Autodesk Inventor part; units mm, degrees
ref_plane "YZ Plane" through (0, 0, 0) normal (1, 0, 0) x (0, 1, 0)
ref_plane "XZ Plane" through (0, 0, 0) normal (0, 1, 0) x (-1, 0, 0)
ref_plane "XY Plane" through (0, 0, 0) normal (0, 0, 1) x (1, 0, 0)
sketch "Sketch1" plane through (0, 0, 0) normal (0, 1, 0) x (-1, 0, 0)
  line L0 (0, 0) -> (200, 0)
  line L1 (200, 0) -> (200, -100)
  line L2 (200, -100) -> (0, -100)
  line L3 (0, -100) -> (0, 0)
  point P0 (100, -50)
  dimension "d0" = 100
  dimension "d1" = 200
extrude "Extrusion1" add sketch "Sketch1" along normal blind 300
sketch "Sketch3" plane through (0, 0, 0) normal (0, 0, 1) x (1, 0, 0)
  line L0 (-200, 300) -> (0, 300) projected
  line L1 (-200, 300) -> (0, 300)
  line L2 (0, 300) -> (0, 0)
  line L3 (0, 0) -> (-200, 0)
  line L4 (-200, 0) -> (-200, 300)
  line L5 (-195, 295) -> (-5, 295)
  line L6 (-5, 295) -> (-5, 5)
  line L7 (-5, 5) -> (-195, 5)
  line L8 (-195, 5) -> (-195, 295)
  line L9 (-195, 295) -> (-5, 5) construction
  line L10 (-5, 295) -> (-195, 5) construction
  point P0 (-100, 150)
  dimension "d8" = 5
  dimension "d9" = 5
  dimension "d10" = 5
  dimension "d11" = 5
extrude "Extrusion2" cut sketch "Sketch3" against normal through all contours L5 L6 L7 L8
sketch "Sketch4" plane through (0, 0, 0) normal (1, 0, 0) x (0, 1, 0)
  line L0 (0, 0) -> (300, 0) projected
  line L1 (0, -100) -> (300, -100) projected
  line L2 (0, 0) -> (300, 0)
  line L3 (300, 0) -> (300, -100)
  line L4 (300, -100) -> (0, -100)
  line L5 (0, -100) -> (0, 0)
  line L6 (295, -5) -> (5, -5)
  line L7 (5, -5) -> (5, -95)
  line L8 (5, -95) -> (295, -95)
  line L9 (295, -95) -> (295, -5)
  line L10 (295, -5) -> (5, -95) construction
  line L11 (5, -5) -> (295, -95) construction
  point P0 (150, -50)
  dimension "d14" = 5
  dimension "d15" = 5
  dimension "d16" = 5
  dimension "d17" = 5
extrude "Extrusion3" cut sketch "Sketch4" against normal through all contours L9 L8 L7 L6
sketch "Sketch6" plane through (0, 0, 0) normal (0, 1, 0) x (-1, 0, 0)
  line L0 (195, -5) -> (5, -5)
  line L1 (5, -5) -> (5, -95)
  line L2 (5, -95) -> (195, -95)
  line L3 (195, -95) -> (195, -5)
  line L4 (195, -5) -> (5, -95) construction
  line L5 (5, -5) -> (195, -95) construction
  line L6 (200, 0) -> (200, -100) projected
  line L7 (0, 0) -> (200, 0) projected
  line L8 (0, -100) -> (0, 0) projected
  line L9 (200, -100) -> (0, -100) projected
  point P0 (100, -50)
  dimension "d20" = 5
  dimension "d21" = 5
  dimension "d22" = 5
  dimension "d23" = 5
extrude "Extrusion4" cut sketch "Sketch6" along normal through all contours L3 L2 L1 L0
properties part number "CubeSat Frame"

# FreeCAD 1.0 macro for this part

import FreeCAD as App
import Part
import Sketcher

V = App.Vector
Q = App.Units.Quantity

doc = App.newDocument("Part")
body = doc.addObject("PartDesign::Body", "Body")

sketch1 = doc.addObject("Sketcher::SketchObject", "Sketch")
body.addObject(sketch1)
sketch1.AttachmentSupport = (doc.XZ_Plane, [""])
sketch1.MapMode = "FlatFace"
sketch1.addGeometry([
    Part.LineSegment(V(-200, 0, 0), V(0, 0, 0)),
    Part.LineSegment(V(0, 0, 0), V(0, -100, 0)),
    Part.LineSegment(V(0, -100, 0), V(-200, -100, 0)),
    Part.LineSegment(V(-200, -100, 0), V(-200, 0, 0)),
], False)
sketch1.addConstraint([
    Sketcher.Constraint("Coincident", 0, 2, 1, 1),
    Sketcher.Constraint("Coincident", 1, 2, 2, 1),
    Sketcher.Constraint("Coincident", 2, 2, 3, 1),
    Sketcher.Constraint("Coincident", 3, 2, 0, 1),
    Sketcher.Constraint("Horizontal", 0),
    Sketcher.Constraint("Vertical", 1),
    Sketcher.Constraint("Horizontal", 2),
    Sketcher.Constraint("Vertical", 3),
    Sketcher.Constraint("Coincident", 0, 2, -1, 1),
    Sketcher.Constraint("DistanceX", 0, 1, 0, 2, Q("200 mm")),
    Sketcher.Constraint("DistanceY", 1, 2, 1, 1, Q("100 mm")),
])
pad1 = doc.addObject("PartDesign::Pad", "Pad")
body.addObject(pad1)
pad1.Profile = sketch1
pad1.Length = 300
pad1.Reversed = True

sketch2 = doc.addObject("Sketcher::SketchObject", "Sketch001")
body.addObject(sketch2)
sketch2.AttachmentSupport = (doc.XY_Plane, [""])
sketch2.MapMode = "FlatFace"
sketch2.addGeometry([
    Part.LineSegment(V(-5, 295, 0), V(-195, 295, 0)),
    Part.LineSegment(V(-195, 295, 0), V(-195, 5, 0)),
    Part.LineSegment(V(-195, 5, 0), V(-5, 5, 0)),
    Part.LineSegment(V(-5, 5, 0), V(-5, 295, 0)),
], False)
sketch2.addConstraint([
    Sketcher.Constraint("Coincident", 0, 2, 1, 1),
    Sketcher.Constraint("Coincident", 1, 2, 2, 1),
    Sketcher.Constraint("Coincident", 2, 2, 3, 1),
    Sketcher.Constraint("Coincident", 3, 2, 0, 1),
    Sketcher.Constraint("Horizontal", 0),
    Sketcher.Constraint("Vertical", 1),
    Sketcher.Constraint("Horizontal", 2),
    Sketcher.Constraint("Vertical", 3),
    Sketcher.Constraint("DistanceY", -1, 1, 1, 2, Q("5 mm")),
    Sketcher.Constraint("DistanceX", 2, 2, -1, 1, Q("5 mm")),
    Sketcher.Constraint("DistanceX", 0, 2, 0, 1, Q("190 mm")),
    Sketcher.Constraint("DistanceY", 1, 2, 1, 1, Q("290 mm")),
])
pocket1 = doc.addObject("PartDesign::Pocket", "Pocket")
body.addObject(pocket1)
pocket1.Profile = sketch2
pocket1.Type = "ThroughAll"

sketch3 = doc.addObject("Sketcher::SketchObject", "Sketch002")
body.addObject(sketch3)
sketch3.AttachmentSupport = (doc.YZ_Plane, [""])
sketch3.MapMode = "FlatFace"
sketch3.addGeometry([
    Part.LineSegment(V(295, -95, 0), V(295, -5, 0)),
    Part.LineSegment(V(295, -5, 0), V(5, -5, 0)),
    Part.LineSegment(V(5, -5, 0), V(5, -95, 0)),
    Part.LineSegment(V(5, -95, 0), V(295, -95, 0)),
], False)
sketch3.addConstraint([
    Sketcher.Constraint("Coincident", 0, 2, 1, 1),
    Sketcher.Constraint("Coincident", 1, 2, 2, 1),
    Sketcher.Constraint("Coincident", 2, 2, 3, 1),
    Sketcher.Constraint("Coincident", 3, 2, 0, 1),
    Sketcher.Constraint("Vertical", 0),
    Sketcher.Constraint("Horizontal", 1),
    Sketcher.Constraint("Vertical", 2),
    Sketcher.Constraint("Horizontal", 3),
    Sketcher.Constraint("DistanceY", 0, 2, -1, 1, Q("5 mm")),
    Sketcher.Constraint("DistanceX", -1, 1, 1, 2, Q("5 mm")),
    Sketcher.Constraint("DistanceX", 1, 2, 1, 1, Q("290 mm")),
    Sketcher.Constraint("DistanceY", 0, 1, 0, 2, Q("90 mm")),
])
pocket2 = doc.addObject("PartDesign::Pocket", "Pocket001")
body.addObject(pocket2)
pocket2.Profile = sketch3
pocket2.Type = "ThroughAll"

sketch4 = doc.addObject("Sketcher::SketchObject", "Sketch003")
body.addObject(sketch4)
sketch4.AttachmentSupport = (doc.XZ_Plane, [""])
sketch4.MapMode = "FlatFace"
sketch4.addGeometry([
    Part.LineSegment(V(-195, -95, 0), V(-195, -5, 0)),
    Part.LineSegment(V(-195, -5, 0), V(-5, -5, 0)),
    Part.LineSegment(V(-5, -5, 0), V(-5, -95, 0)),
    Part.LineSegment(V(-5, -95, 0), V(-195, -95, 0)),
], False)
sketch4.addConstraint([
    Sketcher.Constraint("Coincident", 0, 2, 1, 1),
    Sketcher.Constraint("Coincident", 1, 2, 2, 1),
    Sketcher.Constraint("Coincident", 2, 2, 3, 1),
    Sketcher.Constraint("Coincident", 3, 2, 0, 1),
    Sketcher.Constraint("Vertical", 0),
    Sketcher.Constraint("Horizontal", 1),
    Sketcher.Constraint("Vertical", 2),
    Sketcher.Constraint("Horizontal", 3),
    Sketcher.Constraint("DistanceY", 0, 2, -1, 1, Q("5 mm")),
    Sketcher.Constraint("DistanceX", 1, 2, -1, 1, Q("5 mm")),
    Sketcher.Constraint("DistanceX", 1, 1, 1, 2, Q("190 mm")),
    Sketcher.Constraint("DistanceY", 0, 1, 0, 2, Q("90 mm")),
])
pocket3 = doc.addObject("PartDesign::Pocket", "Pocket002")
body.addObject(pocket3)
pocket3.Profile = sketch4
pocket3.Type = "ThroughAll"

doc.recompute()
